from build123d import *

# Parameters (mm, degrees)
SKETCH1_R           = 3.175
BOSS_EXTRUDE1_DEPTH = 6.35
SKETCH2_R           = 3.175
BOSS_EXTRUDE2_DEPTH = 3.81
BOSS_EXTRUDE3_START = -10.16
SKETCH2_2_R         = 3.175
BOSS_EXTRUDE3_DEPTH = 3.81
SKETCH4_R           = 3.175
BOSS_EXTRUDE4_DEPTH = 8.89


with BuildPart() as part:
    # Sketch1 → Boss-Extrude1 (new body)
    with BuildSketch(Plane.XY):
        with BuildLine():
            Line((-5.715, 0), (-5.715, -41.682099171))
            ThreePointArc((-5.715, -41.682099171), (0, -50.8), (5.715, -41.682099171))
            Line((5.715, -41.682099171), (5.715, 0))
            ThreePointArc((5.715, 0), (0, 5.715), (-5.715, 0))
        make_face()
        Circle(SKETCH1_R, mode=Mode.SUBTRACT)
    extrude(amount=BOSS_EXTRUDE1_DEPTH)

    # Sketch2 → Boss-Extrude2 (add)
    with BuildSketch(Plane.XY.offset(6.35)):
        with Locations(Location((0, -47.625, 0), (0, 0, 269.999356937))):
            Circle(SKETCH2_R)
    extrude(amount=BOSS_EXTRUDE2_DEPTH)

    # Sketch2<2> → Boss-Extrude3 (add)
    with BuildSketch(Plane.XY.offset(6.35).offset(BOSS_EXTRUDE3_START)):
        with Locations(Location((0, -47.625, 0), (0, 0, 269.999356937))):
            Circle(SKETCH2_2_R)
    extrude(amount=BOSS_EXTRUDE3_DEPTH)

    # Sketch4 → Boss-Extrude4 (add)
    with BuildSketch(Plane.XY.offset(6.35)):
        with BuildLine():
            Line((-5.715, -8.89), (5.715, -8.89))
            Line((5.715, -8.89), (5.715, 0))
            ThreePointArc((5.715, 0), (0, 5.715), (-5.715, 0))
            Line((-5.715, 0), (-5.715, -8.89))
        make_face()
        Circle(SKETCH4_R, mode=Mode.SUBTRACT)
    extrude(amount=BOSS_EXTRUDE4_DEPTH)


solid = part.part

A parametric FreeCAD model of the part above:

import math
import FreeCAD as App
import Part
import Sketcher
from FreeCAD import Vector
Q = App.Units.Quantity

doc = App.newDocument("Part")
params = doc.addObject("Spreadsheet::Sheet", "Params")
for row, (alias, value) in enumerate([
    ("sketch1_diameter", "0.25 in"),
    ("sketch1_radius", "0.25 in"),
    ("sketch1_radius2", "0.225 in"),
    ("pad1_length", "0.25 in"),
    ("sketch2_diameter", "0.25 in"),
    ("pad2_length", "0.15 in"),
    ("sketch3_diameter", "0.25 in"),
    ("pad3_length", "0.15 in"),
    ("sketch4_diameter", "0.25 in"),
    ("sketch4_radius", "0.225 in"),
    ("sketch4_height", "0.35 in"),
    ("pad4_length", "0.35 in"),
], start=1):
    params.set(f"A{row}", alias)
    params.set(f"B{row}", "=" + value)
    params.setAlias(f"B{row}", alias)

body = doc.addObject("PartDesign::Body", "Body")

# Sketch on XY plane
sketch1 = body.newObject("Sketcher::SketchObject", "Sketch")
sketch1.AttachmentSupport = (doc.getObject("XY_Plane"), [""])
sketch1.MapMode = "FlatFace"
sketch1.addGeometry([
    Part.LineSegment(Vector(-5.7, 0, 0), Vector(-5.7, -41.7, 0)),  # 0
    Part.ArcOfCircle(Part.Circle(Vector(0, -44.5, 0), Vector(0, 0, 1), 6.3), math.radians(154), math.radians(386)),  # 1
    Part.LineSegment(Vector(5.7, -41.7, 0), Vector(5.7, 0, 0)),  # 2
    Part.ArcOfCircle(Part.Circle(Vector(0, 0, 0), Vector(0, 0, 1), 5.7), math.radians(0), math.radians(180)),  # 3
    Part.Circle(Vector(0, 0, 0), Vector(0, 0, 1), 3.2),  # 4
], False)
sketch1.addConstraint([
    Sketcher.Constraint("Coincident", 0, 2, 1, 1),
    Sketcher.Constraint("Coincident", 1, 2, 2, 1),
    Sketcher.Constraint("Tangent", 2, 2, 3, 1),
    Sketcher.Constraint("Tangent", 3, 2, 0, 1),
    Sketcher.Constraint("Vertical", 0),
    Sketcher.Constraint("Vertical", 2),
    Sketcher.Constraint("Coincident", 3, 3, -1, 1),
    Sketcher.Constraint("Coincident", 4, 3, -1, 1),
    Sketcher.Constraint("PointOnObject", 1, 3, -2),
    Sketcher.Constraint("Diameter", 4, Q("0.25 in")),
    Sketcher.Constraint("Radius", 1, Q("0.25 in")),
    Sketcher.Constraint("Radius", 3, Q("0.225 in")),
    Sketcher.Constraint("DistanceY", 1, 3, -1, 1, Q("1.75 in")),
])
sketch1.setExpression("Constraints[9]", "Params.sketch1_diameter")
sketch1.setExpression("Constraints[10]", "Params.sketch1_radius")
sketch1.setExpression("Constraints[11]", "Params.sketch1_radius2")
pad1 = body.newObject("PartDesign::Pad", "Pad")
pad1.Profile = sketch1
pad1.setExpression("Length", "Params.pad1_length")

# Sketch on XY plane
sketch2 = body.newObject("Sketcher::SketchObject", "Sketch001")
sketch2.AttachmentSupport = (doc.getObject("XY_Plane"), [""])
sketch2.MapMode = "FlatFace"
sketch2.AttachmentOffset = App.Placement(Vector(0, 0, 0.25 * 25.4), App.Rotation())
sketch2.addGeometry(Part.Circle(Vector(0, -47.6, 0), Vector(0, 0, 1), 3.2), False)
sketch2.addConstraint([
    Sketcher.Constraint("PointOnObject", 0, 3, -2),
    Sketcher.Constraint("Diameter", 0, Q("0.25 in")),
    Sketcher.Constraint("DistanceY", 0, 3, -1, 1, Q("1.875 in")),
])
sketch2.setExpression("Constraints[1]", "Params.sketch2_diameter")
pad2 = body.newObject("PartDesign::Pad", "Pad001")
pad2.Profile = sketch2
pad2.setExpression("Length", "Params.pad2_length")

# Sketch on XY plane
sketch3 = body.newObject("Sketcher::SketchObject", "Sketch002")
sketch3.AttachmentSupport = (doc.getObject("XY_Plane"), [""])
sketch3.MapMode = "FlatFace"
sketch3.AttachmentOffset = App.Placement(Vector(0, 0, -0.15 * 25.4), App.Rotation())
sketch3.addGeometry(Part.Circle(Vector(0, -47.6, 0), Vector(0, 0, 1), 3.2), False)
sketch3.addConstraint([
    Sketcher.Constraint("PointOnObject", 0, 3, -2),
    Sketcher.Constraint("Diameter", 0, Q("0.25 in")),
    Sketcher.Constraint("DistanceY", 0, 3, -1, 1, Q("1.875 in")),
])
sketch3.setExpression("Constraints[1]", "Params.sketch3_diameter")
pad3 = body.newObject("PartDesign::Pad", "Pad002")
pad3.Profile = sketch3
pad3.setExpression("Length", "Params.pad3_length")

# Sketch on XY plane
sketch4 = body.newObject("Sketcher::SketchObject", "Sketch003")
sketch4.AttachmentSupport = (doc.getObject("XY_Plane"), [""])
sketch4.MapMode = "FlatFace"
sketch4.AttachmentOffset = App.Placement(Vector(0, 0, 0.25 * 25.4), App.Rotation())
sketch4.addGeometry([
    Part.LineSegment(Vector(-5.7, -8.9, 0), Vector(5.7, -8.9, 0)),  # 0
    Part.LineSegment(Vector(5.7, -8.9, 0), Vector(5.7, 0, 0)),  # 1
    Part.ArcOfCircle(Part.Circle(Vector(0, 0, 0), Vector(0, 0, 1), 5.7), math.radians(0), math.radians(180)),  # 2
    Part.LineSegment(Vector(-5.7, 0, 0), Vector(-5.7, -8.9, 0)),  # 3
    Part.Circle(Vector(0, 0, 0), Vector(0, 0, 1), 3.2),  # 4
], False)
sketch4.addConstraint([
    Sketcher.Constraint("Coincident", 0, 2, 1, 1),
    Sketcher.Constraint("Tangent", 1, 2, 2, 1),
    Sketcher.Constraint("Tangent", 2, 2, 3, 1),
    Sketcher.Constraint("Coincident", 3, 2, 0, 1),
    Sketcher.Constraint("Horizontal", 0),
    Sketcher.Constraint("Vertical", 1),
    Sketcher.Constraint("Vertical", 3),
    Sketcher.Constraint("Coincident", 2, 3, -1, 1),
    Sketcher.Constraint("Coincident", 4, 3, -1, 1),
    Sketcher.Constraint("Diameter", 4, Q("0.25 in")),
    Sketcher.Constraint("Radius", 2, Q("0.225 in")),
    Sketcher.Constraint("DistanceY", 1, 1, 1, 2, Q("0.35 in")),
])
sketch4.setExpression("Constraints[9]", "Params.sketch4_diameter")
sketch4.setExpression("Constraints[10]", "Params.sketch4_radius")
sketch4.setExpression("Constraints[11]", "Params.sketch4_height")
pad4 = body.newObject("PartDesign::Pad", "Pad003")
pad4.Profile = sketch4
pad4.setExpression("Length", "Params.pad4_length")

doc.recompute()
